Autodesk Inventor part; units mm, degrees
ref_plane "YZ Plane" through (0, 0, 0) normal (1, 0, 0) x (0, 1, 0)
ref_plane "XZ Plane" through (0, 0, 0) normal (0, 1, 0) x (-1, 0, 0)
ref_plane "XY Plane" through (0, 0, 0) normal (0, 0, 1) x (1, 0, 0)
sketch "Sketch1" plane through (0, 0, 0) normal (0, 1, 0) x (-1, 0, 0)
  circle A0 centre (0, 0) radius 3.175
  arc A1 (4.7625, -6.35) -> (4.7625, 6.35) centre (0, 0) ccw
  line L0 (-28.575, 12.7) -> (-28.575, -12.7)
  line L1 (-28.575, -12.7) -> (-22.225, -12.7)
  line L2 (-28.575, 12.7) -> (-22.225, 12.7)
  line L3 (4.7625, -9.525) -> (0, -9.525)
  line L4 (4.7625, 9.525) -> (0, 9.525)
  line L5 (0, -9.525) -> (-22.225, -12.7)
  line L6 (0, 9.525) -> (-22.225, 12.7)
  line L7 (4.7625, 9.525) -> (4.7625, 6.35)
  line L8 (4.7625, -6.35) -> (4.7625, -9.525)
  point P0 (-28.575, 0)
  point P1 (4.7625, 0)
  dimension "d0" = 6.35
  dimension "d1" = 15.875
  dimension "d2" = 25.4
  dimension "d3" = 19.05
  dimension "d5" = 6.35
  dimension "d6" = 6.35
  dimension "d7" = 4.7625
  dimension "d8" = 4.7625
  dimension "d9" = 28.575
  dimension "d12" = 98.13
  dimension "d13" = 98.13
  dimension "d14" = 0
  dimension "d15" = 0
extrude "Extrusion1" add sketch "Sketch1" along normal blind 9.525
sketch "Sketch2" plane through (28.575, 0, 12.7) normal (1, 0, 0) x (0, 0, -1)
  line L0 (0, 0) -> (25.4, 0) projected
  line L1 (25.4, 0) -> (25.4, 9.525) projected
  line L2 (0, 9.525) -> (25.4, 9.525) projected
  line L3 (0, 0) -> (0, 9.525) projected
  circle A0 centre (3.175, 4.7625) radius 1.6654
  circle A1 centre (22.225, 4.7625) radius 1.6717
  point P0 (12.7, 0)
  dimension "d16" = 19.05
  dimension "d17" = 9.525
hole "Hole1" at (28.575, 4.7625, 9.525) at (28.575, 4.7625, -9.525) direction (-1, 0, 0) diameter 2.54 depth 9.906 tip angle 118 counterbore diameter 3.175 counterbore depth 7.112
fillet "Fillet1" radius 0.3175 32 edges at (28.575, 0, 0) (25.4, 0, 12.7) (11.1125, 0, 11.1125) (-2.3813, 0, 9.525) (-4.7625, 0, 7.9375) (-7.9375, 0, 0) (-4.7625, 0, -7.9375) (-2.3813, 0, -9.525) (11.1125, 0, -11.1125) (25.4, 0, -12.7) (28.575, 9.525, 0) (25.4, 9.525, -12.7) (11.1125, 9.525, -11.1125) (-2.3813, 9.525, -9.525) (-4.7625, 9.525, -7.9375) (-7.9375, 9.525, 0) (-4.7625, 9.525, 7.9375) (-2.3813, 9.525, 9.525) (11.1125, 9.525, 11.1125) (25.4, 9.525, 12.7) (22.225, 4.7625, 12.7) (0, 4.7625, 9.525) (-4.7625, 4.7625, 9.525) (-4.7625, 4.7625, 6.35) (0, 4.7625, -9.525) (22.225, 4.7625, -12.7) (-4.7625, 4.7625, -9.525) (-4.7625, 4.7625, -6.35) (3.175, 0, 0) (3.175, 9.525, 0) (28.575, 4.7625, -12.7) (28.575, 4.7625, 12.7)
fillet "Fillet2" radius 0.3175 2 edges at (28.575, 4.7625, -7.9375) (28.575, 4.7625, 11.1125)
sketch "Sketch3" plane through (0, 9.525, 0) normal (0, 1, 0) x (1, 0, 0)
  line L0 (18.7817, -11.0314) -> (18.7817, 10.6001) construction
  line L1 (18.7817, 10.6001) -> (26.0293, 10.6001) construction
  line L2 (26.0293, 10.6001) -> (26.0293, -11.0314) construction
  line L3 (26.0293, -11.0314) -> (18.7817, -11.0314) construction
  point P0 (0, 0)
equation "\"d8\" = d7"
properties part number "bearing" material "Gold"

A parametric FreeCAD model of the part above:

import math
import FreeCAD as App
import Part
import Sketcher
from FreeCAD import Vector
Q = App.Units.Quantity


def edges_at(feature, points):
    """Names of the edges that pass closest to the given points."""
    edges = feature.Shape.Edges
    near = lambda p: min(range(len(edges)), key=lambda i: edges[i].distToShape(Part.Vertex(*p))[0])
    return sorted({f"Edge{near(p) + 1}" for p in points})

doc = App.newDocument("Part")
body = doc.addObject("PartDesign::Body", "Body")

# Sketch on XZ plane
sketch1 = body.newObject("Sketcher::SketchObject", "Sketch")
sketch1.AttachmentSupport = (doc.getObject("XZ_Plane"), [""])
sketch1.MapMode = "FlatFace"
sketch1.addGeometry([
    Part.LineSegment(Vector(-4.7625, -9.525, 0), Vector(-4.7625, -6.35, 0)),  # 0
    Part.ArcOfCircle(Part.Circle(Vector(0, 0, 0), Vector(0, 0, 1), 7.9375), math.radians(126.869898), math.radians(233.130102)),  # 1
    Part.LineSegment(Vector(-4.7625, 6.35, 0), Vector(-4.7625, 9.525, 0)),  # 2
    Part.LineSegment(Vector(-4.7625, 9.525, 0), Vector(0, 9.525, 0)),  # 3
    Part.LineSegment(Vector(0, 9.525, 0), Vector(22.225, 12.7, 0)),  # 4
    Part.LineSegment(Vector(22.225, 12.7, 0), Vector(28.575, 12.7, 0)),  # 5
    Part.LineSegment(Vector(28.575, 12.7, 0), Vector(28.575, -12.7, 0)),  # 6
    Part.LineSegment(Vector(28.575, -12.7, 0), Vector(22.225, -12.7, 0)),  # 7
    Part.LineSegment(Vector(22.225, -12.7, 0), Vector(0, -9.525, 0)),  # 8
    Part.LineSegment(Vector(0, -9.525, 0), Vector(-4.7625, -9.525, 0)),  # 9
    Part.Circle(Vector(0, 0, 0), Vector(0, 0, 1), 3.175),  # 10
], False)
sketch1.addConstraint([
    Sketcher.Constraint("Coincident", 0, 2, 1, 2),
    Sketcher.Constraint("Coincident", 1, 1, 2, 1),
    Sketcher.Constraint("Coincident", 2, 2, 3, 1),
    Sketcher.Constraint("Coincident", 3, 2, 4, 1),
    Sketcher.Constraint("Coincident", 4, 2, 5, 1),
    Sketcher.Constraint("Coincident", 5, 2, 6, 1),
    Sketcher.Constraint("Coincident", 6, 2, 7, 1),
    Sketcher.Constraint("Coincident", 7, 2, 8, 1),
    Sketcher.Constraint("Coincident", 8, 2, 9, 1),
    Sketcher.Constraint("Coincident", 9, 2, 0, 1),
    Sketcher.Constraint("Vertical", 0),
    Sketcher.Constraint("Vertical", 2),
    Sketcher.Constraint("Horizontal", 3),
    Sketcher.Constraint("Horizontal", 5),
    Sketcher.Constraint("Vertical", 6),
    Sketcher.Constraint("Horizontal", 7),
    Sketcher.Constraint("Horizontal", 9),
    Sketcher.Constraint("Coincident", 1, 3, -1, 1),
    Sketcher.Constraint("Coincident", 10, 3, -1, 1),
    Sketcher.Constraint("Symmetric", 3, 2, 8, 2, -1, 1),
    Sketcher.Constraint("Symmetric", 4, 2, 7, 2, -1),
    Sketcher.Constraint("PointOnObject", 3, 2, -2),
    Sketcher.Constraint("Vertical", 0, 2, 1, 1),
    Sketcher.Constraint("Diameter", 10, Q("0.25 in")),
    Sketcher.Constraint("DistanceY", 6, 2, 6, 1, Q("1 in")),
    Sketcher.Constraint("Radius", 1, Q("0.3125 in")),
    Sketcher.Constraint("DistanceX", 5, 1, 5, 2, Q("0.25 in")),
    Sketcher.Constraint("DistanceX", 3, 1, 3, 2, Q("0.1875 in")),
    Sketcher.Constraint("DistanceY", 8, 2, 3, 2, Q("0.75 in")),
    Sketcher.Constraint("DistanceX", -1, 1, 5, 2, Q("1.125 in")),
])
pad1 = body.newObject("PartDesign::Pad", "Pad")
pad1.Profile = sketch1
pad1.Length = Q("0.375 in")
pad1.Reversed = True

# Sketch on YZ plane
sketch2 = body.newObject("Sketcher::SketchObject", "Sketch001")
sketch2.AttachmentSupport = (doc.getObject("YZ_Plane"), [""])
sketch2.MapMode = "FlatFace"
sketch2.AttachmentOffset = App.Placement(Vector(0, 0, 1.125 * 25.4), App.Rotation())
sketch2.addGeometry([
    Part.Circle(Vector(4.7625, 9.525, 0), Vector(0, 0, 1), 1.27),
    Part.Circle(Vector(4.7625, -9.525, 0), Vector(0, 0, 1), 1.27),
], False)
sketch2.addConstraint([
    Sketcher.Constraint("Equal", 0, 1),
    Sketcher.Constraint("Symmetric", 0, 3, 1, 3, -1),
    Sketcher.Constraint("Diameter", 0, Q("0.1 in")),
    Sketcher.Constraint("DistanceY", 1, 3, 0, 3, Q("0.75 in")),
    Sketcher.Constraint("DistanceX", -1, 1, 0, 3, Q("0.1875 in")),
])
doc.recompute()
hole = body.newObject("PartDesign::Hole", "Hole")
hole.Profile = sketch2
hole.ThreadType = "None"
hole.Diameter = Q("0.1 in")
hole.DepthType = "Dimension"
hole.Depth = Q("0.39 in")
hole.DrillPoint = "Angled"
hole.DrillPointAngle = 118
hole.HoleCutType = "Counterbore"
hole.HoleCutDiameter = Q("0.125 in")
hole.HoleCutDepth = Q("0.28 in")
doc.recompute()

fillet = body.newObject("PartDesign::Fillet", "Fillet")
fillet.Base = (hole, edges_at(hole, [
    (28.575, 0, 0),
    (25.4, 0, 12.7),
    (11.113, 0, 11.113),
    (-2.381, 0, 9.525),
    (-4.763, 0, 7.938),
    (-7.938, 0, 0),
    (-4.763, 0, -7.938),
    (-2.381, 0, -9.525),
    (11.113, 0, -11.113),
    (25.4, 0, -12.7),
    (28.575, 9.525, 0),
    (25.4, 9.525, -12.7),
    (11.113, 9.525, -11.113),
    (-2.381, 9.525, -9.525),
    (-4.763, 9.525, -7.938),
    (-7.938, 9.525, 0),
    (-4.763, 9.525, 7.938),
    (-2.381, 9.525, 9.525),
    (11.113, 9.525, 11.113),
    (25.4, 9.525, 12.7),
    (22.225, 4.763, 12.7),
    (0, 4.763, 9.525),
    (-4.763, 4.763, 9.525),
    (-4.763, 4.763, 6.35),
    (0, 4.763, -9.525),
    (22.225, 4.763, -12.7),
    (-4.763, 4.763, -9.525),
    (-4.763, 4.763, -6.35),
    (3.175, 0, 0),
    (3.175, 9.525, 0),
    (28.575, 4.763, -12.7),
    (28.575, 4.763, 12.7),
]))
fillet.Radius = Q("0.0125 in")
doc.recompute()

fillet2 = body.newObject("PartDesign::Fillet", "Fillet001")
fillet2.Base = (fillet, edges_at(fillet, [(28.575, 4.763, -7.938), (28.575, 4.763, 11.113)]))
fillet2.Radius = Q("0.0125 in")

doc.recompute()
